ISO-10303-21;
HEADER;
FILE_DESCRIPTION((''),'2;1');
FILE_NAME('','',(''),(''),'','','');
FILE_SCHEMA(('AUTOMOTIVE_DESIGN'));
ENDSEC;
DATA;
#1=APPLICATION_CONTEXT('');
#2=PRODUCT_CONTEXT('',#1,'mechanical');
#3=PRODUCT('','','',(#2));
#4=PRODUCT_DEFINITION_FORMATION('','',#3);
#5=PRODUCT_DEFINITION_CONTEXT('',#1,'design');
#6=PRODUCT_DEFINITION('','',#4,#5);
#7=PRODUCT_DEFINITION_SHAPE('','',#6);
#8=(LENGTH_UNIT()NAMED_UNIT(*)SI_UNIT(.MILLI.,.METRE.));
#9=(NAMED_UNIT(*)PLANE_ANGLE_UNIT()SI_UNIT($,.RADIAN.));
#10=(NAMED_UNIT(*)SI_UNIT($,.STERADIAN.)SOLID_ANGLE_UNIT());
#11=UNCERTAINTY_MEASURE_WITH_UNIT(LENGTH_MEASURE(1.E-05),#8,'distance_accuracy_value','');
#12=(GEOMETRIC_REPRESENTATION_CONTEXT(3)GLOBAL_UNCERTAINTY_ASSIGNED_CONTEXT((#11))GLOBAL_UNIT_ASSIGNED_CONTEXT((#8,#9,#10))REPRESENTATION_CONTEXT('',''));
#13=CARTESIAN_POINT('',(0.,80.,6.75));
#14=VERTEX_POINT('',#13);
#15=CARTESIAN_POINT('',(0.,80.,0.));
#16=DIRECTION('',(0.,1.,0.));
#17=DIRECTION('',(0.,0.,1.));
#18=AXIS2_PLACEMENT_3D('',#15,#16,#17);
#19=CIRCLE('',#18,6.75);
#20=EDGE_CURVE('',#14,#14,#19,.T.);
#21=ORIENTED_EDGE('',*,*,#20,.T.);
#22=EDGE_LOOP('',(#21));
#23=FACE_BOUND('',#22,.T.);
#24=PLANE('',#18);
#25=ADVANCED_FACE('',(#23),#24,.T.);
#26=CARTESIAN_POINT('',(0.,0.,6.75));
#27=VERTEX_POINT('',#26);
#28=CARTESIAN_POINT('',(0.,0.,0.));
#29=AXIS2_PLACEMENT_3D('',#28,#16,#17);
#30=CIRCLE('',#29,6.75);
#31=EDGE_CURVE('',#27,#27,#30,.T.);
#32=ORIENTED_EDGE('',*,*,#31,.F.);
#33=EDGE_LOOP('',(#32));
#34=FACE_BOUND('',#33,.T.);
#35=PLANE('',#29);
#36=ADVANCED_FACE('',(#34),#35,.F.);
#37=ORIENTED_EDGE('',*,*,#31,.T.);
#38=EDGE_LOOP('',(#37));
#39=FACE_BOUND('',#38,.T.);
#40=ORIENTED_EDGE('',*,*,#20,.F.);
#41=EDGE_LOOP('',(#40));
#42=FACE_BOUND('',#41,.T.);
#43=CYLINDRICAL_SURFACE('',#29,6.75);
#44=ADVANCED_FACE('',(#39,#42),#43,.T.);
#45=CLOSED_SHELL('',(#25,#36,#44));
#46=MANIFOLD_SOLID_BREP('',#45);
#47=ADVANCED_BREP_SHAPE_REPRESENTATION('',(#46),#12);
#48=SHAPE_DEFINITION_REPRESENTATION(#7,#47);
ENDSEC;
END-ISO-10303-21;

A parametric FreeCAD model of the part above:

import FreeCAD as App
import Part
import Sketcher
from FreeCAD import Vector
Q = App.Units.Quantity

doc = App.newDocument("Part")
body = doc.addObject("PartDesign::Body", "Body")

sketch1 = doc.addObject("Sketcher::SketchObject", "Sketch")
body.addObject(sketch1)
sketch1.AttachmentSupport = (doc.XZ_Plane, [""])
sketch1.MapMode = "FlatFace"
sketch1.addGeometry(Part.Circle(Vector(0, 0, 0), Vector(0, 0, 1), 7), False)
sketch1.addConstraint(Sketcher.Constraint("Coincident", 0, 3, -1, 1))
sketch1.addConstraint(Sketcher.Constraint("Diameter", 0, Q("13.5 mm")))

sketch2 = doc.addObject("Sketcher::SketchObject", "Sketch001")
body.addObject(sketch2)
sketch2.AttachmentSupport = (doc.XY_Plane, [""])
sketch2.MapMode = "FlatFace"
sketch2.addGeometry(Part.LineSegment(Vector(0, 0, 0), Vector(0, 80, 0)), False)
sketch2.addConstraint(Sketcher.Constraint("Vertical", 0))
sketch2.addConstraint(Sketcher.Constraint("Coincident", 0, 1, -1, 1))
sketch2.addConstraint(Sketcher.Constraint("DistanceY", 0, 1, 0, 2, Q("80 mm")))
doc.recompute()

additivepipe = doc.addObject("PartDesign::AdditivePipe", "AdditivePipe")
body.addObject(additivepipe)
additivepipe.Profile = sketch1
additivepipe.Spine = (sketch2, ["Edge1"])

doc.recompute()
